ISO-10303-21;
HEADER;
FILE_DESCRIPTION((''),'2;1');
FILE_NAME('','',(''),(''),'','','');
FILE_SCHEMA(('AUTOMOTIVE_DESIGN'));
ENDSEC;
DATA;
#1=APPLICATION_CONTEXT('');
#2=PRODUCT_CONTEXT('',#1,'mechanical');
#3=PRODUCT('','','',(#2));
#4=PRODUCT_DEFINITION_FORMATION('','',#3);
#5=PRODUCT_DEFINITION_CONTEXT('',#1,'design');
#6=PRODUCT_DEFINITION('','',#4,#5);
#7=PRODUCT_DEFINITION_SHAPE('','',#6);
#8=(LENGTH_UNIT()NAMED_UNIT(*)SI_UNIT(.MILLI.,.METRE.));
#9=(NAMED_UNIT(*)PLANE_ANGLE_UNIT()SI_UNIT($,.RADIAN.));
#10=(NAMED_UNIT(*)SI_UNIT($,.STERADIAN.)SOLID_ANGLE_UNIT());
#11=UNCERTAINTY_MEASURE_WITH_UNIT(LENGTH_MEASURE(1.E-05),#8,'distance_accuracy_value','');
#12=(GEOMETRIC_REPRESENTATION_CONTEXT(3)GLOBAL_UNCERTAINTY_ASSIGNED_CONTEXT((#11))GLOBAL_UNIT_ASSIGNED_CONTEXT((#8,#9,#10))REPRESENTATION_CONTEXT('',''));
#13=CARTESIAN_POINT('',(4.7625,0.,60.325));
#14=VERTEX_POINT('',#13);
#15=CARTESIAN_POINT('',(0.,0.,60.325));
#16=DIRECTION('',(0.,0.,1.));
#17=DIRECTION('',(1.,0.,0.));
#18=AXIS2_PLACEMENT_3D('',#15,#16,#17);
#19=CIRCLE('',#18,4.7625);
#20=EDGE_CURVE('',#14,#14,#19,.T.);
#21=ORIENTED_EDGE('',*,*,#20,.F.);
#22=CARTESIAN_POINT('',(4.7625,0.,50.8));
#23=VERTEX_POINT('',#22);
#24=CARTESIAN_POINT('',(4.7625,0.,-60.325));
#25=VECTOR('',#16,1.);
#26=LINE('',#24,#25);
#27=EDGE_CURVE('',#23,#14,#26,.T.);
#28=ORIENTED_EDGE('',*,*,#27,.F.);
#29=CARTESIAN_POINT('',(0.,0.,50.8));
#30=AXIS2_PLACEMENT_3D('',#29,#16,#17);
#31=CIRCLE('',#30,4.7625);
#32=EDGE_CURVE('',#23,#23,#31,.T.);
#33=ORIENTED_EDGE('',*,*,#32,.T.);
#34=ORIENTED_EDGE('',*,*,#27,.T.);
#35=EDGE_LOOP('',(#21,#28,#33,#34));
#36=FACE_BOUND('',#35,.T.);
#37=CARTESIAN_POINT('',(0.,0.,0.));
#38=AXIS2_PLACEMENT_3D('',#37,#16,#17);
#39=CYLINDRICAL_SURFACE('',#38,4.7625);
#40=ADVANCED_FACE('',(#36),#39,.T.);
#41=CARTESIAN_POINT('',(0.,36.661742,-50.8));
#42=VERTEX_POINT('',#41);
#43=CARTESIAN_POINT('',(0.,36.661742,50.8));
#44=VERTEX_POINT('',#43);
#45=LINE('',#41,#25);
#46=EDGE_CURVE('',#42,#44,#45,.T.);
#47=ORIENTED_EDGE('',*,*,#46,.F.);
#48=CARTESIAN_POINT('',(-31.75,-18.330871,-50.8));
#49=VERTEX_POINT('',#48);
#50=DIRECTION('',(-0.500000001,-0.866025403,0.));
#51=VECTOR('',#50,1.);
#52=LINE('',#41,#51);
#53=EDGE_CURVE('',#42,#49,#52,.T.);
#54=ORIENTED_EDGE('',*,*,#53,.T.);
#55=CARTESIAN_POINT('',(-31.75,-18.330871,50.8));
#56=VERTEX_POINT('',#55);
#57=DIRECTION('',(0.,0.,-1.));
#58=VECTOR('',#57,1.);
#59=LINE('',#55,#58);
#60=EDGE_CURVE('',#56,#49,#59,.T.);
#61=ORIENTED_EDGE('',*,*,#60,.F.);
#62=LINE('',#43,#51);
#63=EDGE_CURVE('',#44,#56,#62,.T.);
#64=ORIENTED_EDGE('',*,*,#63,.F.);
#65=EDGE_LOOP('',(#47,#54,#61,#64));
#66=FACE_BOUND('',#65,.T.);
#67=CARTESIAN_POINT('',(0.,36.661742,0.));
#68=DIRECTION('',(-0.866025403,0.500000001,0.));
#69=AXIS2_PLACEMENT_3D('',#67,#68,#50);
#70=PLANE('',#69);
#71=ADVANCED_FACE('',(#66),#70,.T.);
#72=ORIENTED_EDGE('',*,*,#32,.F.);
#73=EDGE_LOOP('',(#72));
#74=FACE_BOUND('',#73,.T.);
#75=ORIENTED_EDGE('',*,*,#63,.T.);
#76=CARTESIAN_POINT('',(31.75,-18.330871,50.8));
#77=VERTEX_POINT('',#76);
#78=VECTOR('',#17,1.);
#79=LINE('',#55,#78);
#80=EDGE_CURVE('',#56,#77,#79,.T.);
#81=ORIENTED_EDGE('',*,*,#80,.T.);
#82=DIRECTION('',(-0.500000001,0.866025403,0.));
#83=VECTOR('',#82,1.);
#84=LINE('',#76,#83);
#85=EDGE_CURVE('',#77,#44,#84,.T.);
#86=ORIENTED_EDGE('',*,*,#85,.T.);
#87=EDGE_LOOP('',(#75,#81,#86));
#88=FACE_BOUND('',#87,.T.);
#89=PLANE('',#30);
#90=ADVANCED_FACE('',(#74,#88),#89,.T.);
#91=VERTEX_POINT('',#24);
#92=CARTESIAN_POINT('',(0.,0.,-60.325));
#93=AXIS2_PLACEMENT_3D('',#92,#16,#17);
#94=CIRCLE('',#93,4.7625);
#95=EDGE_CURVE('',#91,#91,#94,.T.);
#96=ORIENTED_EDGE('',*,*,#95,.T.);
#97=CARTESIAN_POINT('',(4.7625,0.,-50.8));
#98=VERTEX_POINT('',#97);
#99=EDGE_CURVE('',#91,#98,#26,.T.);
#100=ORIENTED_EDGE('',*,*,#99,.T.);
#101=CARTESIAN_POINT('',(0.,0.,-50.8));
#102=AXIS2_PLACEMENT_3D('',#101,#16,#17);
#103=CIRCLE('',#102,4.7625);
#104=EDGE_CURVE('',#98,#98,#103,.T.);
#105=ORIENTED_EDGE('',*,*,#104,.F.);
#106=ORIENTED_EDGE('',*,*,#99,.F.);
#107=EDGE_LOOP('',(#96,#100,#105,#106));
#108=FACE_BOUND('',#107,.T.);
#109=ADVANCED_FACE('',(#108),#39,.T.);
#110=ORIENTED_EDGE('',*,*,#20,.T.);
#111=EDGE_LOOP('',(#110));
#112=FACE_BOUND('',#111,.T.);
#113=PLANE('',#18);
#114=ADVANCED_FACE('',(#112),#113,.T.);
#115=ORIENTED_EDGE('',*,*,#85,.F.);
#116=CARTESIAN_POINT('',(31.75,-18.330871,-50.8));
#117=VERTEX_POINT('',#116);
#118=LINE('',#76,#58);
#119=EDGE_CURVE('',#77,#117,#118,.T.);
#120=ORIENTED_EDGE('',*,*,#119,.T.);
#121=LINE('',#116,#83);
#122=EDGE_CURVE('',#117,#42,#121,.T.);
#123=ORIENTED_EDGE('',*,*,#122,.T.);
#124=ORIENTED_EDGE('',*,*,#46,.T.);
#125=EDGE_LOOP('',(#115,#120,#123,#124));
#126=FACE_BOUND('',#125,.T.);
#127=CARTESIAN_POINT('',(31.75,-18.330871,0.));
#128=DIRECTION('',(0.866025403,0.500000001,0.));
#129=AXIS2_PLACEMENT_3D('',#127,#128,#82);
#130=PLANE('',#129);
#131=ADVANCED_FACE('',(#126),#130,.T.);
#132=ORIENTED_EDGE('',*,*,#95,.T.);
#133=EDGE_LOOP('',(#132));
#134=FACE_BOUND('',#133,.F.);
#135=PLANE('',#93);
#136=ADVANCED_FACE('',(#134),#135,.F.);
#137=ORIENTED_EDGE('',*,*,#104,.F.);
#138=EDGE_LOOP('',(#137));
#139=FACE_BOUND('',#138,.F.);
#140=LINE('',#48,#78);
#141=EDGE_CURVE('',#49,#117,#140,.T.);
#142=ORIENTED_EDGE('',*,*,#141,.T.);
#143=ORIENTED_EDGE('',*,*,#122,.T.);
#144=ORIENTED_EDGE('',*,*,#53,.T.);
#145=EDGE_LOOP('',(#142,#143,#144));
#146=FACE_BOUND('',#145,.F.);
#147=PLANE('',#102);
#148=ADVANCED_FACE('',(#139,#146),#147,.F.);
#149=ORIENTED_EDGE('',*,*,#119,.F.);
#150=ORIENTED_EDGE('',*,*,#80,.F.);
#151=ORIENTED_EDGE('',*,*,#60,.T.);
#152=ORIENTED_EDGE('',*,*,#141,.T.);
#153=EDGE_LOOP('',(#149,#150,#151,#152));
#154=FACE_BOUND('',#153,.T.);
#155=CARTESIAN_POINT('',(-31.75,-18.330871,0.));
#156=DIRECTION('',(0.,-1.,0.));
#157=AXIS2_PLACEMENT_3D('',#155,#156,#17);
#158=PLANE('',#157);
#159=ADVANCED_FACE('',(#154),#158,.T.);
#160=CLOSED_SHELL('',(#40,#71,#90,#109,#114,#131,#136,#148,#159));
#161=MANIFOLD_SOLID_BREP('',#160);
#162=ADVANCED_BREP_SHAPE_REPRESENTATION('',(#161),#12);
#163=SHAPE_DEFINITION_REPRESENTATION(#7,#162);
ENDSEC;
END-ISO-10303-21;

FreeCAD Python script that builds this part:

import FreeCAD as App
import Part
import Sketcher
Q = App.Units.Quantity

doc = App.newDocument("Part")
params = doc.addObject("Spreadsheet::Sheet", "Params")
for row, (alias, value) in enumerate([
    ("sketch1_width", "2.5 in"),
    ("pad1_length", "4 in"),
    ("sketch2_diameter", "0.375 in"),
    ("pad2_length", "4.75 in"),
], start=1):
    params.set(f"A{row}", alias)
    params.set(f"B{row}", "=" + value)
    params.setAlias(f"B{row}", alias)

body = doc.addObject("PartDesign::Body", "Body")

sketch1 = doc.addObject("Sketcher::SketchObject", "Sketch")
body.addObject(sketch1)
sketch1.AttachmentSupport = (doc.XY_Plane, [""])
sketch1.MapMode = "FlatFace"
sketch1.addGeometry([
    Part.LineSegment(App.Vector(32, -18, 0), App.Vector(0, 37, 0)),
    Part.LineSegment(App.Vector(0, 37, 0), App.Vector(-32, -18, 0)),
    Part.LineSegment(App.Vector(-32, -18, 0), App.Vector(32, -18, 0)),
], False)
sketch1.addConstraint([
    Sketcher.Constraint("Coincident", 0, 2, 1, 1),
    Sketcher.Constraint("Coincident", 1, 2, 2, 1),
    Sketcher.Constraint("Coincident", 2, 2, 0, 1),
    Sketcher.Constraint("Horizontal", 2),
    Sketcher.Constraint("PointOnObject", 0, 2, -2),
    Sketcher.Constraint("Equal", 0, 1),
    Sketcher.Constraint("DistanceX", 2, 1, 2, 2, Q("2.5 in")),
    Sketcher.Constraint("Angle", 0, Q("120 deg")),
    Sketcher.Constraint("DistanceY", -1, 1, 0, 2, Q("36.661742 mm")),
])
sketch1.setExpression("Constraints[6]", "Params.sketch1_width")
pad1 = doc.addObject("PartDesign::Pad", "Pad")
body.addObject(pad1)
pad1.Profile = sketch1
pad1.setExpression("Length", "Params.pad1_length")
pad1.Midplane = True

sketch2 = doc.addObject("Sketcher::SketchObject", "Sketch001")
body.addObject(sketch2)
sketch2.AttachmentSupport = (doc.XY_Plane, [""])
sketch2.MapMode = "FlatFace"
sketch2.addGeometry(Part.Circle(App.Vector(0, 0, 0), App.Vector(0, 0, 1), 4.8), False)
sketch2.addConstraint([
    Sketcher.Constraint("Coincident", 0, 3, -1, 1),
    Sketcher.Constraint("Diameter", 0, Q("0.375 in")),
])
sketch2.setExpression("Constraints[1]", "Params.sketch2_diameter")
pad2 = doc.addObject("PartDesign::Pad", "Pad001")
body.addObject(pad2)
pad2.Profile = sketch2
pad2.setExpression("Length", "Params.pad2_length")
pad2.Midplane = True

doc.recompute()
